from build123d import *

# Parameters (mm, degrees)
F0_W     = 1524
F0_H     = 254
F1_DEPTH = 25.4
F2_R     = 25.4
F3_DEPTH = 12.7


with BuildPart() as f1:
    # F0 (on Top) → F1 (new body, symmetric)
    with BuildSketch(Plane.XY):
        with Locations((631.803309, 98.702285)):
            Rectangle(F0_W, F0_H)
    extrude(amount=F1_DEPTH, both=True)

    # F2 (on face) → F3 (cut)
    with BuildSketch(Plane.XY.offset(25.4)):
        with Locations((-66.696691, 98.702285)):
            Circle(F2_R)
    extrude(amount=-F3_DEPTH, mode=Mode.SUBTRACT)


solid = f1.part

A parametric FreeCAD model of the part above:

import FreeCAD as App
import Part
import Sketcher
Q = App.Units.Quantity


def add_polygon(sketch, points):
    """Adds a closed chain of lines whose ends are joined by coincident constraints."""
    first, n = sketch.GeometryCount, len(points)
    for a, b in zip(points, points[1:] + points[:1]):
        sketch.addGeometry(Part.LineSegment(App.Vector(*a, 0), App.Vector(*b, 0)), False)
    for i in range(n):
        sketch.addConstraint(Sketcher.Constraint("Coincident", first + i, 2, first + (i + 1) % n, 1))

doc = App.newDocument("Part")
body = doc.addObject("PartDesign::Body", "Body")

# Sketch on XY plane
sketch1 = body.newObject("Sketcher::SketchObject", "Sketch")
sketch1.AttachmentSupport = (doc.getObject("XY_Plane"), [""])
sketch1.MapMode = "FlatFace"
add_polygon(sketch1, [(-130.196691, 225.702285), (-130.196691, -28.297715), (1393.803309, -28.297715), (1393.803309, 225.702285)])  # lines 0-3
sketch1.addConstraint(Sketcher.Constraint("Vertical", 0))
sketch1.addConstraint(Sketcher.Constraint("Horizontal", 1))
sketch1.addConstraint(Sketcher.Constraint("Vertical", 2))
sketch1.addConstraint(Sketcher.Constraint("Horizontal", 3))
sketch1.addConstraint(Sketcher.Constraint("DistanceX", 1, 1, 1, 2, Q("60 in")))
sketch1.addConstraint(Sketcher.Constraint("DistanceY", 0, 2, 0, 1, Q("10 in")))
sketch1.addConstraint(Sketcher.Constraint("DistanceX", 0, 2, -1, 1, 130.196691))
sketch1.addConstraint(Sketcher.Constraint("DistanceY", 0, 2, -1, 1, 28.297715))
pad1 = body.newObject("PartDesign::Pad", "Pad")
pad1.Profile = sketch1
pad1.Length = Q("2 in")
pad1.Midplane = True

# Sketch on XY plane
sketch2 = body.newObject("Sketcher::SketchObject", "Sketch001")
sketch2.AttachmentSupport = (doc.getObject("XY_Plane"), [""])
sketch2.MapMode = "FlatFace"
sketch2.AttachmentOffset = App.Placement(App.Vector(0, 0, 1 * 25.4), App.Rotation())
sketch2.addGeometry(Part.Circle(App.Vector(-66.696691, 98.702285, 0), App.Vector(0, 0, 1), 25.4), False)
sketch2.addConstraint(Sketcher.Constraint("Diameter", 0, Q("2 in")))
sketch2.addConstraint(Sketcher.Constraint("DistanceX", 0, 3, -1, 1, 66.696691))
sketch2.addConstraint(Sketcher.Constraint("DistanceY", -1, 1, 0, 3, 98.702285))
pocket1 = body.newObject("PartDesign::Pocket", "Pocket")
pocket1.Profile = sketch2
pocket1.Length = Q("0.5 in")

doc.recompute()
